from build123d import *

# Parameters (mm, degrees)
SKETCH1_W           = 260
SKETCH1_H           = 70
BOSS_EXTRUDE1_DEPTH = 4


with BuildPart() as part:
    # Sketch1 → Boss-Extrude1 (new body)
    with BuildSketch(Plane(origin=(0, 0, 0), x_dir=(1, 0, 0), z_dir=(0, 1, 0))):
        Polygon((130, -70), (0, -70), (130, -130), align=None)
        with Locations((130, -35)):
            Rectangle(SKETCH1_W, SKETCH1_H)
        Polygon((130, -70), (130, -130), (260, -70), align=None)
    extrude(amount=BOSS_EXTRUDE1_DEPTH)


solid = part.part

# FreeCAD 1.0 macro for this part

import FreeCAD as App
import Part
import Sketcher
from FreeCAD import Vector


def add_polygon(sketch, points):
    """Adds a closed chain of lines whose ends are joined by coincident constraints."""
    first, n = sketch.GeometryCount, len(points)
    for a, b in zip(points, points[1:] + points[:1]):
        sketch.addGeometry(Part.LineSegment(App.Vector(*a, 0), App.Vector(*b, 0)), False)
    for i in range(n):
        sketch.addConstraint(Sketcher.Constraint("Coincident", first + i, 2, first + (i + 1) % n, 1))

doc = App.newDocument("Part")
body = doc.addObject("PartDesign::Body", "Body")

# Sketch on XZ plane
sketch1 = body.newObject("Sketcher::SketchObject", "Sketch")
sketch1.AttachmentSupport = (doc.getObject("XZ_Plane"), [""])
sketch1.MapMode = "FlatFace"
add_polygon(sketch1, [(0, 70), (130, 130), (260, 70), (260, 0), (0, 0)])  # lines 0-4
sketch1.addConstraint([
    Sketcher.Constraint("Vertical", 2),
    Sketcher.Constraint("Horizontal", 3),
    Sketcher.Constraint("Vertical", 4),
    Sketcher.Constraint("Coincident", 3, 2, -1, 1),
    Sketcher.Constraint("Horizontal", 1, 2, 4, 2),
    Sketcher.Constraint("Equal", 0, 1),
    Sketcher.Constraint("DistanceX", 3, 2, 3, 1, 260.0),
    Sketcher.Constraint("DistanceY", 2, 2, 2, 1, 70.0),
    Sketcher.Constraint("DistanceY", -1, 1, 0, 2, 130.0),
])
pad1 = body.newObject("PartDesign::Pad", "Pad")
pad1.Profile = sketch1
pad1.Length = 4
pad1.Reversed = True

doc.recompute()
